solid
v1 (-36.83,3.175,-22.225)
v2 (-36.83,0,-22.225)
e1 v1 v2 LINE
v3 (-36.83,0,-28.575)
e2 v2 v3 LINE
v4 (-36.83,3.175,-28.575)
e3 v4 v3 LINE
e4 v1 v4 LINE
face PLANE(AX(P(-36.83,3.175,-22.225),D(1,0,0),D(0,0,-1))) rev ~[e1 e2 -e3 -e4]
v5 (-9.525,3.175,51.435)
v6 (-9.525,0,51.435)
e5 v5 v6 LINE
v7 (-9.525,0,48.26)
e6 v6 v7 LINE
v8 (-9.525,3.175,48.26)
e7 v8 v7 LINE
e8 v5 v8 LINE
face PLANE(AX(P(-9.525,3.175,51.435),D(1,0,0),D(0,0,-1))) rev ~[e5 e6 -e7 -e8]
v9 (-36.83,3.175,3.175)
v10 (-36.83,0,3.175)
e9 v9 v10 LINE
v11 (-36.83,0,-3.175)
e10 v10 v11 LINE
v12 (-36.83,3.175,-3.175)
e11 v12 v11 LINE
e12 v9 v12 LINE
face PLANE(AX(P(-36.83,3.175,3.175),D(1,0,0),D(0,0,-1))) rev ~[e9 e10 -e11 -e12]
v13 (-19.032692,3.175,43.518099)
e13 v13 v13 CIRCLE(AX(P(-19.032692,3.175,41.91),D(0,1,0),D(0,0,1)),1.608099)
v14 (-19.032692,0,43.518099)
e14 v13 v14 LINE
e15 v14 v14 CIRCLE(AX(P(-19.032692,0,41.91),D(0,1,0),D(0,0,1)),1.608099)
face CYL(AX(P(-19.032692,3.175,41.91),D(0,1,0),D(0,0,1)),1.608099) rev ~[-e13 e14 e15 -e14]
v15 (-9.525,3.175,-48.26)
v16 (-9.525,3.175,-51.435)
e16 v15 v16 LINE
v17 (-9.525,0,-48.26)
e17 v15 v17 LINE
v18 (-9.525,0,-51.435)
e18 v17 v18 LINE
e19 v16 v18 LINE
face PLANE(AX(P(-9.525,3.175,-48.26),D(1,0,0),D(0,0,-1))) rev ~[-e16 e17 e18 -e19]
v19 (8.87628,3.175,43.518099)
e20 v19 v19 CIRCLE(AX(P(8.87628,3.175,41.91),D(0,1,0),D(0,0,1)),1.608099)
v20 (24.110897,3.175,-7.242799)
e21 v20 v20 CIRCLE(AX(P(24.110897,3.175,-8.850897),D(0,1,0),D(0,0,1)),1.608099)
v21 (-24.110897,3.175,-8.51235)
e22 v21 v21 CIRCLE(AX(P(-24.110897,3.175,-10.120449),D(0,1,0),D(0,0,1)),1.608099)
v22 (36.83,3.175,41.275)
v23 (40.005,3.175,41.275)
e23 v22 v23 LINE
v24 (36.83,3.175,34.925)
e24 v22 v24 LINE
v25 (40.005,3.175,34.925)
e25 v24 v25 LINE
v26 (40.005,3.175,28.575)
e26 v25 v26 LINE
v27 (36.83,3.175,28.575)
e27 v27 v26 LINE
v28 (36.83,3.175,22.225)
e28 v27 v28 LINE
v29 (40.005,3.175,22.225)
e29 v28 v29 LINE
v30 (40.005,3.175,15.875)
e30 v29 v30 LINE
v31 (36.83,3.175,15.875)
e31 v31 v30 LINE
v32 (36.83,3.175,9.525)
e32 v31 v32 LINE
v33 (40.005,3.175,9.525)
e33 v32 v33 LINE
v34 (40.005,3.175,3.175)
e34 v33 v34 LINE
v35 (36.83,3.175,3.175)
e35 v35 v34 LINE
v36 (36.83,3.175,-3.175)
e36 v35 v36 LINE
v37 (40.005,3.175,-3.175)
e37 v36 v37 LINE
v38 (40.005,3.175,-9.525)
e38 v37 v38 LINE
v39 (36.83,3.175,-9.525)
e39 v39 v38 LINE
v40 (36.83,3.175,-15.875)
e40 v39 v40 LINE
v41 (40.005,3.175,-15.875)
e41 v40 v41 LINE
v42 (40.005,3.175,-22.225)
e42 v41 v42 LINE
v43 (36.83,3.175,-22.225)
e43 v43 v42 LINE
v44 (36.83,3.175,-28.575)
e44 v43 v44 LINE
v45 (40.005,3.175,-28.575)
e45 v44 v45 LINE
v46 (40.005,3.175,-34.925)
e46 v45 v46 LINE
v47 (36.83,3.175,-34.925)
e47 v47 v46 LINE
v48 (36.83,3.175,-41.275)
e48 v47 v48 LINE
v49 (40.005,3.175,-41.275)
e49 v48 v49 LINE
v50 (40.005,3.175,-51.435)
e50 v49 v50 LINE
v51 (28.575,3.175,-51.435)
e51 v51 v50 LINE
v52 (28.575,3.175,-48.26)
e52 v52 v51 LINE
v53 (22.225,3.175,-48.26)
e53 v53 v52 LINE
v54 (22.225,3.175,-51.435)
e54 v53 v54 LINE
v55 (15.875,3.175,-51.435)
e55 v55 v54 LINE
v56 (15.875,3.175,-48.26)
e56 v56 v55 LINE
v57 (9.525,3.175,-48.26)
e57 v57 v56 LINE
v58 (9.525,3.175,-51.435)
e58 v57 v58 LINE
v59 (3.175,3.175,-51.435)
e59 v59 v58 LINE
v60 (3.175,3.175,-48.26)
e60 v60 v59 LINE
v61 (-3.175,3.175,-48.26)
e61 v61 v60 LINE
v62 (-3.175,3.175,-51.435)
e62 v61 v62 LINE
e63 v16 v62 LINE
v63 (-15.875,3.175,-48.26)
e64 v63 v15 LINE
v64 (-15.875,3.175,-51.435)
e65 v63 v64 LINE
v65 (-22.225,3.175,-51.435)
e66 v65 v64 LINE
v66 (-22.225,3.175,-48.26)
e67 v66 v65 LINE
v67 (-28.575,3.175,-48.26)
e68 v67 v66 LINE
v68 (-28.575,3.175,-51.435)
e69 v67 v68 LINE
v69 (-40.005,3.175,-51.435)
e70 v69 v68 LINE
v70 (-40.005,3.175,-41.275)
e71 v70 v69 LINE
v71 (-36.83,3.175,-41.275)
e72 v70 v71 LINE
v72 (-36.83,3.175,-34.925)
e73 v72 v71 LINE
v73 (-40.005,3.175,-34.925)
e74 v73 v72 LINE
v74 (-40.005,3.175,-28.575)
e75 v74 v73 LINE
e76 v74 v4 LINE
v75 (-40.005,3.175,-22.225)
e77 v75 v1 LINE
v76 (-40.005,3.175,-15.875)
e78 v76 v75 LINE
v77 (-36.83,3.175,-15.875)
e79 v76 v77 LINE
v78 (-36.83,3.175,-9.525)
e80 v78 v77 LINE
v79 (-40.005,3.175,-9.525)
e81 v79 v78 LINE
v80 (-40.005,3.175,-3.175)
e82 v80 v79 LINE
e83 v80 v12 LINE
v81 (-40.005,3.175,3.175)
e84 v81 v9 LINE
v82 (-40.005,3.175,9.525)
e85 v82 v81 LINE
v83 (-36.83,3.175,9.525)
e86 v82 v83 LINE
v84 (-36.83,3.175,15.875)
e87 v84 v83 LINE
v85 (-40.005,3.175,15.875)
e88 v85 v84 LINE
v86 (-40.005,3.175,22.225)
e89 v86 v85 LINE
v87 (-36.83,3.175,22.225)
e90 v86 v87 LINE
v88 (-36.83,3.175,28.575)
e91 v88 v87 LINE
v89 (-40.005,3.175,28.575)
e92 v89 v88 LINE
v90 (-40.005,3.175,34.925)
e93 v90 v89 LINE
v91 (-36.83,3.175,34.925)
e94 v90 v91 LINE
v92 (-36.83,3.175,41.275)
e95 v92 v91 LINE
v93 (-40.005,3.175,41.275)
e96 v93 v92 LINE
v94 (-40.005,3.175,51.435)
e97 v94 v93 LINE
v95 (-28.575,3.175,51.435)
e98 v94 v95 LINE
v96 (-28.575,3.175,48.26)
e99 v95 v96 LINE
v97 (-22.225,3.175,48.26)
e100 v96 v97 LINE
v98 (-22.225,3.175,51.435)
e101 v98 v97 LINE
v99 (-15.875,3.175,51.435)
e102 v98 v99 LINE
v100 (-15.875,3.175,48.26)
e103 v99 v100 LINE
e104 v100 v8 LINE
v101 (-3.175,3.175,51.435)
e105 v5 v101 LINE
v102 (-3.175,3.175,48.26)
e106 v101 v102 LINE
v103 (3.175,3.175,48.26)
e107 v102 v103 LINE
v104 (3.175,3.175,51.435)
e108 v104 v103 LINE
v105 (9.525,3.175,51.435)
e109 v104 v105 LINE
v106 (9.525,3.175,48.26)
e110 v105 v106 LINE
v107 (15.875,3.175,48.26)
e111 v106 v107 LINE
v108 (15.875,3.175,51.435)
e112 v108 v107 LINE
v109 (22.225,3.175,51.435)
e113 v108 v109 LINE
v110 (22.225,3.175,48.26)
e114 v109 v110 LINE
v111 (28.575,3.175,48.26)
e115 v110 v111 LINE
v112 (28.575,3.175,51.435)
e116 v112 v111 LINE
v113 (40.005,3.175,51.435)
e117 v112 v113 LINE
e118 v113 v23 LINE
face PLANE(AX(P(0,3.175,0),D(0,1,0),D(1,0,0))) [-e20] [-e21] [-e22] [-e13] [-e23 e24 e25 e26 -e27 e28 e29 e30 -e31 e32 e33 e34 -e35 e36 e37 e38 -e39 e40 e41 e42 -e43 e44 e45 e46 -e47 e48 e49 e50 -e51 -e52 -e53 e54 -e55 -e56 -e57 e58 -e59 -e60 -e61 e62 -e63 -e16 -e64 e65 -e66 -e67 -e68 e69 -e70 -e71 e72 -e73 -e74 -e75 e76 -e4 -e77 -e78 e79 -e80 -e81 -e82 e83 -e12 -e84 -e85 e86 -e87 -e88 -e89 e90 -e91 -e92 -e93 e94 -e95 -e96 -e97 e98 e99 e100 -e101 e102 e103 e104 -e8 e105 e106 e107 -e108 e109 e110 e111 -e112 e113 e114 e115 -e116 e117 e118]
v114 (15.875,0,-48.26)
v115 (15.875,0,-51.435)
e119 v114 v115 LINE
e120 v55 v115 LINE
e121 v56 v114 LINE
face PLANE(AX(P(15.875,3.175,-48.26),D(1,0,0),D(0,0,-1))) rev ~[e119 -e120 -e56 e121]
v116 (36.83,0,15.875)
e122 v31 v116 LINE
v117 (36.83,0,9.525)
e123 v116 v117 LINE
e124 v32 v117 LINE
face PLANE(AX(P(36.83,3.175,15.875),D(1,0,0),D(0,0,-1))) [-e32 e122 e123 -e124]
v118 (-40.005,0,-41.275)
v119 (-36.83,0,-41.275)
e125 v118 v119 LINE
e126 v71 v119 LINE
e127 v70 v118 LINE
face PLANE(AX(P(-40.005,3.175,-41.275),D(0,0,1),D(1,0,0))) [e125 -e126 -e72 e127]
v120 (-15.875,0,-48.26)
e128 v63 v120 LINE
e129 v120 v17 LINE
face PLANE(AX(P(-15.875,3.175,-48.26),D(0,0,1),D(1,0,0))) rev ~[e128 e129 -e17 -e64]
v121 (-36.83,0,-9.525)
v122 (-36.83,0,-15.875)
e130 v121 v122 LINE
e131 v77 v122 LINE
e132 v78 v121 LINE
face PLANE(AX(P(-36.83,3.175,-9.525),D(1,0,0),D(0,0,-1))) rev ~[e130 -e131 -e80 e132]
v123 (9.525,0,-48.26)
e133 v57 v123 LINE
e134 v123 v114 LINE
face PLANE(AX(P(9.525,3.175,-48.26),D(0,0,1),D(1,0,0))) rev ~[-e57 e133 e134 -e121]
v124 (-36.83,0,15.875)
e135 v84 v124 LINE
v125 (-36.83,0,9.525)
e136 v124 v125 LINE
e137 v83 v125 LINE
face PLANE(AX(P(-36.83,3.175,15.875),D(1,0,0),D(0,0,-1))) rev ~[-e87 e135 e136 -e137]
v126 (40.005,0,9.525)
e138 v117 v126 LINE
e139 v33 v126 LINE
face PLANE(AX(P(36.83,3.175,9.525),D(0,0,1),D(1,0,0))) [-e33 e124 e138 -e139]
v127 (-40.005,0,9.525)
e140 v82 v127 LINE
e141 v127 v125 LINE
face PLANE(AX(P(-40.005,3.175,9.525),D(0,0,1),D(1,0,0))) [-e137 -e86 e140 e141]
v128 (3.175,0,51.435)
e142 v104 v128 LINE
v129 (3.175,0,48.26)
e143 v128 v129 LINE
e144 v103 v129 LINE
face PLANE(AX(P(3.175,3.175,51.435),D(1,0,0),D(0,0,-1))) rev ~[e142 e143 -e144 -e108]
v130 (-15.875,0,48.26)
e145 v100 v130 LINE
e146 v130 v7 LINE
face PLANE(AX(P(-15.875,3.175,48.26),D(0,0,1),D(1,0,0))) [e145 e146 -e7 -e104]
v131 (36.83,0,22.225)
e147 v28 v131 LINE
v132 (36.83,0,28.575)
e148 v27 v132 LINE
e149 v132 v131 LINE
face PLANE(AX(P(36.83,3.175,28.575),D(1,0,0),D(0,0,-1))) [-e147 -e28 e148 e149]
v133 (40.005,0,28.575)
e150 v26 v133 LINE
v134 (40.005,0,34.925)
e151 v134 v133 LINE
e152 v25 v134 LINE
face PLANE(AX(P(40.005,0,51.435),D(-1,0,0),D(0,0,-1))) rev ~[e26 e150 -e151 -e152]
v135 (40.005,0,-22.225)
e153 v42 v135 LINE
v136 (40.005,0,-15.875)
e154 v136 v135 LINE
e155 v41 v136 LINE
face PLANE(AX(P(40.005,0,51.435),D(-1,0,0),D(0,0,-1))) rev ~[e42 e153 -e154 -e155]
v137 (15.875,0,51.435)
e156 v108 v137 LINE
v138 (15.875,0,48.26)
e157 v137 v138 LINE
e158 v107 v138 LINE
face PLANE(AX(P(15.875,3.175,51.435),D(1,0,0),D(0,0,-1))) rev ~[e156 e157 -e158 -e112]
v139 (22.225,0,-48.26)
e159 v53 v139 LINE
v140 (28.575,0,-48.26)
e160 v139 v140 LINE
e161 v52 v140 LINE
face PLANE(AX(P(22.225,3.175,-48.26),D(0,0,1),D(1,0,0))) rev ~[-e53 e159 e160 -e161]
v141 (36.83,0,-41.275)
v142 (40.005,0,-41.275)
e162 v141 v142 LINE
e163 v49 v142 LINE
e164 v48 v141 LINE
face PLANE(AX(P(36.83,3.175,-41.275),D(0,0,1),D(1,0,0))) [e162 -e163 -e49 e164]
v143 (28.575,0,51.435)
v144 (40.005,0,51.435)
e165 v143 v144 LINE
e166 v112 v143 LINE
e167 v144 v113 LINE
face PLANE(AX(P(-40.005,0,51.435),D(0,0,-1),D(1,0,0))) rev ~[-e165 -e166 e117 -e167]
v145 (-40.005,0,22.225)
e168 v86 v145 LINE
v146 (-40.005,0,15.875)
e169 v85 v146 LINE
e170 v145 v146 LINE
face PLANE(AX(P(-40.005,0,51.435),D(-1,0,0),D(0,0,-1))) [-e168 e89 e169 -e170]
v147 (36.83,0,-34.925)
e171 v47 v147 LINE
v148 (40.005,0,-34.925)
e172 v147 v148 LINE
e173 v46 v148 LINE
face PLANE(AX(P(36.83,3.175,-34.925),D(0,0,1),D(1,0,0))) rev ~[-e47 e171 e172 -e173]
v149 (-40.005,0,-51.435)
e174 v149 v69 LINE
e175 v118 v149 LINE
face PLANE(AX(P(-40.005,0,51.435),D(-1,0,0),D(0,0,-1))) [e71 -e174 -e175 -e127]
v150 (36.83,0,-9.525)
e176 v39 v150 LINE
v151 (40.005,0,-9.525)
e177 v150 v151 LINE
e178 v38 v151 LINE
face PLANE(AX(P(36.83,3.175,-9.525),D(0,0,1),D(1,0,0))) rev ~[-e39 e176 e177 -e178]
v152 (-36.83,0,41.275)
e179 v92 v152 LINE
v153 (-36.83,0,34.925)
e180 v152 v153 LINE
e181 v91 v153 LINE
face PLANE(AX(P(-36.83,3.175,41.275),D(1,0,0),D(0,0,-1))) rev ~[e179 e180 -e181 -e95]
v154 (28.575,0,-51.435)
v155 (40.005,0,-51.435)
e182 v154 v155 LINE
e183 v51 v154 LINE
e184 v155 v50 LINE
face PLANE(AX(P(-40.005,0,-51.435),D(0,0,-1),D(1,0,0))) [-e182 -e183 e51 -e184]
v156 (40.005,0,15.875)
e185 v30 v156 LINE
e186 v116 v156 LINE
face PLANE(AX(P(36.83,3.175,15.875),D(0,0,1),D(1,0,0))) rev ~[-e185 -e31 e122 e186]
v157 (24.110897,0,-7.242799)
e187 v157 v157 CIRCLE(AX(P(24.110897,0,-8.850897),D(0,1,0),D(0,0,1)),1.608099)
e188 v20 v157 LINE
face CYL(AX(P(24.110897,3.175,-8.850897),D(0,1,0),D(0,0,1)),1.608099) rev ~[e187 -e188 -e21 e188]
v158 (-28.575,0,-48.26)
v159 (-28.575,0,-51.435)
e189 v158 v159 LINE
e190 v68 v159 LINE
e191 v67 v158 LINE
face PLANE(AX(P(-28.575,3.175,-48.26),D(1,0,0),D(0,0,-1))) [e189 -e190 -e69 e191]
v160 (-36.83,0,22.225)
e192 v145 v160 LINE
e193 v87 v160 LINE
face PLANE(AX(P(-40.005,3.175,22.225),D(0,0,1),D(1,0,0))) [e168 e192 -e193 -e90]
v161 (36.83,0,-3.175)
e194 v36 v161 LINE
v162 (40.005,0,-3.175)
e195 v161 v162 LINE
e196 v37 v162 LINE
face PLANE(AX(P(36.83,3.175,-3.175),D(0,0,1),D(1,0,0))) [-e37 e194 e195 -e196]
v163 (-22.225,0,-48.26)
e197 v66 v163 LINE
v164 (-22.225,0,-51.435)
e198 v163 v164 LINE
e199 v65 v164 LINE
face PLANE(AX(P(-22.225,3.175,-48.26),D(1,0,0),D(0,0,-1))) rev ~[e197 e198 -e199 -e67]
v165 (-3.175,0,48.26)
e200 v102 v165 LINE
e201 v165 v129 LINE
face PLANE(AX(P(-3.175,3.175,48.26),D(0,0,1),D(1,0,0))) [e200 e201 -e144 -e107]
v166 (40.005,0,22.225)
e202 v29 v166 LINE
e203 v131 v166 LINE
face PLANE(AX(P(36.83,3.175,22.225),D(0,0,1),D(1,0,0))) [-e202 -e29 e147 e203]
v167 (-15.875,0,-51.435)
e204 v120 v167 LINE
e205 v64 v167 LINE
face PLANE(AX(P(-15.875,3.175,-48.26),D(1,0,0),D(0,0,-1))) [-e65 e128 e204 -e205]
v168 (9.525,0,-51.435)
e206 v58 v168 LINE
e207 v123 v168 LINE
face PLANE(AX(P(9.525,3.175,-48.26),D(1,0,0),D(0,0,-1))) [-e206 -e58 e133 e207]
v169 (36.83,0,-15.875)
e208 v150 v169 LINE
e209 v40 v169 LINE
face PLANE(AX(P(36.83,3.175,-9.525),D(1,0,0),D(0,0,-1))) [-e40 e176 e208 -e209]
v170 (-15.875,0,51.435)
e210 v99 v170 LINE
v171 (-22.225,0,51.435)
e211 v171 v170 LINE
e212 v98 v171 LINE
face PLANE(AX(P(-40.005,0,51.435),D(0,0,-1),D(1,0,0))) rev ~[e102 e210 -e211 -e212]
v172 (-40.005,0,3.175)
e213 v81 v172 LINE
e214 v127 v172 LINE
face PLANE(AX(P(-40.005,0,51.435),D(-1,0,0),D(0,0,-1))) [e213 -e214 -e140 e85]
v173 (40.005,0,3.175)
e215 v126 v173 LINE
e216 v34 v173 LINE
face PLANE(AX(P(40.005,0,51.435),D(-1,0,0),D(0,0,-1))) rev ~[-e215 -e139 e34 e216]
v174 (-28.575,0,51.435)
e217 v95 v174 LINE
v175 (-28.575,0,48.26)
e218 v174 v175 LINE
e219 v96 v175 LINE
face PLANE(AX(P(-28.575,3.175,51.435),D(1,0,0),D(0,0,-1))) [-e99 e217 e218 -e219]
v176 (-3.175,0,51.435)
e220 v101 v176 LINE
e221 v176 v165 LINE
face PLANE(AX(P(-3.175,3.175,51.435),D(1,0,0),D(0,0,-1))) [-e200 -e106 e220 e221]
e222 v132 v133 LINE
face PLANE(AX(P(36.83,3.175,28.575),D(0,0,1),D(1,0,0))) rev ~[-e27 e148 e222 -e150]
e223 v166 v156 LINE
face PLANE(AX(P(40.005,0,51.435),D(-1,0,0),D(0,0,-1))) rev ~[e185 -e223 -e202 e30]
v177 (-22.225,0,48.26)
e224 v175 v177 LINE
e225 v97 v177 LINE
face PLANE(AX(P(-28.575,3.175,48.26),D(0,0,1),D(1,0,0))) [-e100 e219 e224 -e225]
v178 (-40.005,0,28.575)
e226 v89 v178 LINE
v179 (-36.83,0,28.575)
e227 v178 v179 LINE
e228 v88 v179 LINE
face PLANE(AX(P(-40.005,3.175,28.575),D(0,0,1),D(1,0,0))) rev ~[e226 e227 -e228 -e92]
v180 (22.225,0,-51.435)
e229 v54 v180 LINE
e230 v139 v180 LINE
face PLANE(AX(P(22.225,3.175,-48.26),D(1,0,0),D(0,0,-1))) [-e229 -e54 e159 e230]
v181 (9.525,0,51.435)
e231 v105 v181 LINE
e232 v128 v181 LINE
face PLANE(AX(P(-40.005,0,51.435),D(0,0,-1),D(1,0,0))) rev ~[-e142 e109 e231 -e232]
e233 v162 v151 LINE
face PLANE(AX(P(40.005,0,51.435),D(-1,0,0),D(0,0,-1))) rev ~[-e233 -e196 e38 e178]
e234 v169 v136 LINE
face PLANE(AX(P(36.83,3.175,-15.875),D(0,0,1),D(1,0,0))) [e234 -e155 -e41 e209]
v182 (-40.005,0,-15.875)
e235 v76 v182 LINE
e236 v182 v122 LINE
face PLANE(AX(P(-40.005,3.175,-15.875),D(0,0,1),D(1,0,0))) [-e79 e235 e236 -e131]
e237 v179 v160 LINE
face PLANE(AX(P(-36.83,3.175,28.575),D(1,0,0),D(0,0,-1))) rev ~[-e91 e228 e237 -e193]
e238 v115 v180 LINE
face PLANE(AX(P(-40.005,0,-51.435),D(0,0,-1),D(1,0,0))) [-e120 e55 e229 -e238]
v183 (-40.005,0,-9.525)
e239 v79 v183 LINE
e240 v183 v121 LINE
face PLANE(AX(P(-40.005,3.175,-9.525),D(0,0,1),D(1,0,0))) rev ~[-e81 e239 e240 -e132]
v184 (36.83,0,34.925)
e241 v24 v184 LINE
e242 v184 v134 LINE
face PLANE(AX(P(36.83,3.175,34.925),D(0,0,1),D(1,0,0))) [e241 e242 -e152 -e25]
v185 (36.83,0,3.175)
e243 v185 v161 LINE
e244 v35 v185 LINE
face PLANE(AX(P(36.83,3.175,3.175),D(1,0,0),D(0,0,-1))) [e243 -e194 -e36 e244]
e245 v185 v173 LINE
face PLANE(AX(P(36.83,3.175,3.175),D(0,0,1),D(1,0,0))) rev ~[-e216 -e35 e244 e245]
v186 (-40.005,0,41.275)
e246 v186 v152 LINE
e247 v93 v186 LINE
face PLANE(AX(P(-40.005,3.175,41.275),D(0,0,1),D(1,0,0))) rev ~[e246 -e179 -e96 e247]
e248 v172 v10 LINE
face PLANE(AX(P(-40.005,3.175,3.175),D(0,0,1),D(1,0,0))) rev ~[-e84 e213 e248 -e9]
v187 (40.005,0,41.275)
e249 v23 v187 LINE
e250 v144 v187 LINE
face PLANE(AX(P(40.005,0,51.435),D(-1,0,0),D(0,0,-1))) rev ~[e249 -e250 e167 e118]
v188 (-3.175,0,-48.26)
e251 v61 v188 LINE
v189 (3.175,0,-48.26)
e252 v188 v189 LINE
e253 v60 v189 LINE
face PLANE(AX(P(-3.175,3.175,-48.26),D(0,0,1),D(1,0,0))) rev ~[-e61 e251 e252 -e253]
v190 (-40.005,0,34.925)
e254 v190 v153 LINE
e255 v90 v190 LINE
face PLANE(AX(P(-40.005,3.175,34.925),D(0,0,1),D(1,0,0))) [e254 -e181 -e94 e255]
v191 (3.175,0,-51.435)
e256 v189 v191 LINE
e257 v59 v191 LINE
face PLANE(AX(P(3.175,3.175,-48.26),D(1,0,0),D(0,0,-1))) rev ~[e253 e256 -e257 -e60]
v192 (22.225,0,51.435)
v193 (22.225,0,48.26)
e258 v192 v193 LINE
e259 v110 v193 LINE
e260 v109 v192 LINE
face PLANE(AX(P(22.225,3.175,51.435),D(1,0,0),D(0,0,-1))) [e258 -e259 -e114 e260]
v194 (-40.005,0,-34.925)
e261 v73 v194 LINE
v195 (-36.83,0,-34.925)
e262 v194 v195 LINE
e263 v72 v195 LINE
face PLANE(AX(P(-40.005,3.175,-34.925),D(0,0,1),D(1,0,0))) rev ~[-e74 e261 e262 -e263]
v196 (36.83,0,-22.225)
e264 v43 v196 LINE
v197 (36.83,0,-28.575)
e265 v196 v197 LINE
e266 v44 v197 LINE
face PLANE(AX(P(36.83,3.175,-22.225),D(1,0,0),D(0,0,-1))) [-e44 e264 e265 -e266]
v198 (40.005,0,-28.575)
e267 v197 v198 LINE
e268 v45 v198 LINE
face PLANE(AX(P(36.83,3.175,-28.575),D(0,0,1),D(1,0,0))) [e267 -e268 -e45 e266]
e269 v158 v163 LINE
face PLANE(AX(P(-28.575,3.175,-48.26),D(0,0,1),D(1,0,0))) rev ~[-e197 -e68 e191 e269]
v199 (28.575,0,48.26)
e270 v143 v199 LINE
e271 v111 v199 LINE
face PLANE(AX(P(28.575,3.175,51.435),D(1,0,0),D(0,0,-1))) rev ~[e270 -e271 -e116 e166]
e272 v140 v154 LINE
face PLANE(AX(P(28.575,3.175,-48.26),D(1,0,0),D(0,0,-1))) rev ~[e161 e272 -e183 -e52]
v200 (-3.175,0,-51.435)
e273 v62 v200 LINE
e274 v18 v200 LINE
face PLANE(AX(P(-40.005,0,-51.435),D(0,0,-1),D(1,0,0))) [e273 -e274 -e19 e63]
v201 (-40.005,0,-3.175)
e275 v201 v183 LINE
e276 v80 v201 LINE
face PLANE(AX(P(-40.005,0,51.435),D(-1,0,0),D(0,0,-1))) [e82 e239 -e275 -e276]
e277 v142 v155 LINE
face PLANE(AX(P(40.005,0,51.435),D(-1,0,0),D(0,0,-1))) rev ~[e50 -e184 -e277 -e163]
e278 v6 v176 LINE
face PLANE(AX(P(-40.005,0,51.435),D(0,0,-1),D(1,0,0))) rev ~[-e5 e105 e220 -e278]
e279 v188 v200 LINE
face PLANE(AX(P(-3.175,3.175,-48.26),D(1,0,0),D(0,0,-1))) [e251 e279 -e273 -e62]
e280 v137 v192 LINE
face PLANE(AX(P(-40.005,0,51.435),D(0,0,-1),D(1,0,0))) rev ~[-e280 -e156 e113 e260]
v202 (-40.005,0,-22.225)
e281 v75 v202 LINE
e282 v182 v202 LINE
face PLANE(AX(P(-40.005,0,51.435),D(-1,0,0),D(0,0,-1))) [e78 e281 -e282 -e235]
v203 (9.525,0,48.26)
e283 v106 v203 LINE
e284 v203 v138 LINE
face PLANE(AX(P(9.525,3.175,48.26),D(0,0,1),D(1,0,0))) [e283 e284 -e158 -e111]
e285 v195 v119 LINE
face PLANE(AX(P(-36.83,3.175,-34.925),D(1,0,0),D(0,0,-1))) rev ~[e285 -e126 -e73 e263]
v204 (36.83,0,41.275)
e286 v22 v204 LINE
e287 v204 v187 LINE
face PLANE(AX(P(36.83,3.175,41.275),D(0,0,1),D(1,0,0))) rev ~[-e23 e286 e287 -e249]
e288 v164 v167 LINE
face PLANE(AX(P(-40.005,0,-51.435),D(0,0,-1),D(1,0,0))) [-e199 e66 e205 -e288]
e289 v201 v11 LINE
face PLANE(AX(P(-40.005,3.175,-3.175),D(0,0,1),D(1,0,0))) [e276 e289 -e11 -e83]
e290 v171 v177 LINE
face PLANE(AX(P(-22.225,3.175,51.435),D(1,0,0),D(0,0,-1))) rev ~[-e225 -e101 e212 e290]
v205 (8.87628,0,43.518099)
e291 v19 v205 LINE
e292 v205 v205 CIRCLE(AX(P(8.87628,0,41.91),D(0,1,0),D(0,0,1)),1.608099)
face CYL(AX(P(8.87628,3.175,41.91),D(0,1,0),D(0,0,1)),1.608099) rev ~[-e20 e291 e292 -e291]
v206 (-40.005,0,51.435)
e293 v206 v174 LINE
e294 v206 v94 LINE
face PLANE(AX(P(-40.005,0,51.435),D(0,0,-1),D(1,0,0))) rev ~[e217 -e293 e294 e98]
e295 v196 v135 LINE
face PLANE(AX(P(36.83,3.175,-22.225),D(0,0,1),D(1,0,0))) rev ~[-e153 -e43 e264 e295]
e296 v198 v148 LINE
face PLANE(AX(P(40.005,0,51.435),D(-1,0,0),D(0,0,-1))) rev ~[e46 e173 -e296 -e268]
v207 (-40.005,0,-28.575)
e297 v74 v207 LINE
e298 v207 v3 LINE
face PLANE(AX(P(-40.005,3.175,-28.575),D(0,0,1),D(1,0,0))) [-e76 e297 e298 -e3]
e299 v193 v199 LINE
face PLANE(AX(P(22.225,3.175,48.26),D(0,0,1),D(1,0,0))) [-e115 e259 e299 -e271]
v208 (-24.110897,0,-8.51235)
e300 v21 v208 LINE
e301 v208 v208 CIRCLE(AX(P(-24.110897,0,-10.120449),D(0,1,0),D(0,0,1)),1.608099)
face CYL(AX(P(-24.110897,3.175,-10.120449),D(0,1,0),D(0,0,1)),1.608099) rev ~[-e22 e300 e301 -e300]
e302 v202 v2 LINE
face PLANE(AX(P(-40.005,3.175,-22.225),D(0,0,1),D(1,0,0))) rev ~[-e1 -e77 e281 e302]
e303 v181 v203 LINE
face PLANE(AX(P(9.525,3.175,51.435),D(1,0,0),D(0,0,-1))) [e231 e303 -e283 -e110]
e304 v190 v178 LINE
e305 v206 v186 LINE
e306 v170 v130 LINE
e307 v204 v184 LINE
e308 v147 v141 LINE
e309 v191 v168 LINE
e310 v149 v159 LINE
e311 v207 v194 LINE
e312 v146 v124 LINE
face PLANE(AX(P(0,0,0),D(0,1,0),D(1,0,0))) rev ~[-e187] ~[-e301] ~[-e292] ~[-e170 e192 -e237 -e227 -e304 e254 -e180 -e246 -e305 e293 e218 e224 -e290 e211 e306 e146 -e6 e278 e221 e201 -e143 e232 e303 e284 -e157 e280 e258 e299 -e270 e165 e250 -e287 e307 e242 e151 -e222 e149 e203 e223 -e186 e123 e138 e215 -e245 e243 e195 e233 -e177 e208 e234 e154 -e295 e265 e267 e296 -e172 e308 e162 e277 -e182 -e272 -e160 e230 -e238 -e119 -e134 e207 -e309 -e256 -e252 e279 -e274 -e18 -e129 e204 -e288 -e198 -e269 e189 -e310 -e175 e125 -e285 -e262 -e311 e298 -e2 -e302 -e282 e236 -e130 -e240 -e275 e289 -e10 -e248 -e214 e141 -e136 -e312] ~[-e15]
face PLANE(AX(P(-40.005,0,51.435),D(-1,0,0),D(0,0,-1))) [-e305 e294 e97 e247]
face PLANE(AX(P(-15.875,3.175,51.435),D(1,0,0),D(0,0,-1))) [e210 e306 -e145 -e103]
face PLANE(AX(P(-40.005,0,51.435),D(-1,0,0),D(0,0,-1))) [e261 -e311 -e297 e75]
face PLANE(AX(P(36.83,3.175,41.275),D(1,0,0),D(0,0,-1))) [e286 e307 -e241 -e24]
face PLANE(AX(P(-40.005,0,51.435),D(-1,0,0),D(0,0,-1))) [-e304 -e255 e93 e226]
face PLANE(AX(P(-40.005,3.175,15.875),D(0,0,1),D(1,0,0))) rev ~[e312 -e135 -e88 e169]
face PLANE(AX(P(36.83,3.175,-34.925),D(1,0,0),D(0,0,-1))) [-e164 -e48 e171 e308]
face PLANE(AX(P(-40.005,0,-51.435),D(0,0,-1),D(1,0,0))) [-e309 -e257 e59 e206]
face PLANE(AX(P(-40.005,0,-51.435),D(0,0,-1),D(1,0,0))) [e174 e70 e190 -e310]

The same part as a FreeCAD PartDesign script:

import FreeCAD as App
import Part
import Sketcher

V = App.Vector
Q = App.Units.Quantity

doc = App.newDocument("Part")
body = doc.addObject("PartDesign::Body", "Body")

sketch1 = body.newObject("Sketcher::SketchObject", "Sketch")
sketch1.AttachmentSupport = (doc.getObject("XZ_Plane"), [""])
sketch1.MapMode = "FlatFace"
sketch1.addGeometry(Part.LineSegment(V(-40, -51, 0), V(-40, 51, 0)), False)
sketch1.addGeometry(Part.LineSegment(V(-40, 51, 0), V(40, 51, 0)), False)
sketch1.addGeometry(Part.LineSegment(V(40, 51, 0), V(40, -51, 0)), False)
sketch1.addGeometry(Part.LineSegment(V(40, -51, 0), V(-40, -51, 0)), False)
sketch1.addConstraint(Sketcher.Constraint("Coincident", 0, 2, 1, 1))
sketch1.addConstraint(Sketcher.Constraint("Coincident", 1, 2, 2, 1))
sketch1.addConstraint(Sketcher.Constraint("Coincident", 2, 2, 3, 1))
sketch1.addConstraint(Sketcher.Constraint("Coincident", 3, 2, 0, 1))
sketch1.addConstraint(Sketcher.Constraint("Vertical", 0))
sketch1.addConstraint(Sketcher.Constraint("Horizontal", 1))
sketch1.addConstraint(Sketcher.Constraint("Vertical", 2))
sketch1.addConstraint(Sketcher.Constraint("Horizontal", 3))
sketch1.addConstraint(Sketcher.Constraint("Symmetric", 0, 2, 2, 2, -1, 1))
sketch1.addConstraint(Sketcher.Constraint("DistanceX", 1, 1, 1, 2, Q("3.15 in")))
sketch1.addConstraint(Sketcher.Constraint("DistanceY", 0, 1, 0, 2, Q("4.05 in")))
pad1 = body.newObject("PartDesign::Pad", "Pad")
pad1.Profile = sketch1
pad1.Length = Q("0.125 in")
pad1.Reversed = True

sketch2 = body.newObject("Sketcher::SketchObject", "Sketch001")
sketch2.AttachmentSupport = (doc.getObject("XZ_Plane"), [""])
sketch2.MapMode = "FlatFace"
sketch2.AttachmentOffset = App.Placement(V(0, 0, -0.125 * 25.4), App.Rotation())
sketch2.addGeometry(Part.LineSegment(V(-40, 34.9, 0), V(-40, 41.3, 0)), False)
sketch2.addGeometry(Part.LineSegment(V(-40, 41.3, 0), V(-36.8, 41.3, 0)), False)
sketch2.addGeometry(Part.LineSegment(V(-36.8, 41.3, 0), V(-36.8, 34.9, 0)), False)
sketch2.addGeometry(Part.LineSegment(V(-36.8, 34.9, 0), V(-40, 34.9, 0)), False)
sketch2.addGeometry(Part.LineSegment(V(-40, 22.2, 0), V(-40, 28.6, 0)), False)
sketch2.addGeometry(Part.LineSegment(V(-40, 28.6, 0), V(-36.8, 28.6, 0)), False)
sketch2.addGeometry(Part.LineSegment(V(-36.8, 28.6, 0), V(-36.8, 22.2, 0)), False)
sketch2.addGeometry(Part.LineSegment(V(-36.8, 22.2, 0), V(-40, 22.2, 0)), False)
sketch2.addGeometry(Part.LineSegment(V(-40, 9.5, 0), V(-40, 15.9, 0)), False)
sketch2.addGeometry(Part.LineSegment(V(-40, 15.9, 0), V(-36.8, 15.9, 0)), False)
sketch2.addGeometry(Part.LineSegment(V(-36.8, 15.9, 0), V(-36.8, 9.5, 0)), False)
sketch2.addGeometry(Part.LineSegment(V(-36.8, 9.5, 0), V(-40, 9.5, 0)), False)
sketch2.addGeometry(Part.LineSegment(V(-40, -3.2, 0), V(-40, 3.2, 0)), False)
sketch2.addGeometry(Part.LineSegment(V(-40, 3.2, 0), V(-36.8, 3.2, 0)), False)
sketch2.addGeometry(Part.LineSegment(V(-36.8, 3.2, 0), V(-36.8, -3.2, 0)), False)
sketch2.addGeometry(Part.LineSegment(V(-36.8, -3.2, 0), V(-40, -3.2, 0)), False)
sketch2.addGeometry(Part.LineSegment(V(-40, -15.9, 0), V(-40, -9.5, 0)), False)
sketch2.addGeometry(Part.LineSegment(V(-40, -9.5, 0), V(-36.8, -9.5, 0)), False)
sketch2.addGeometry(Part.LineSegment(V(-36.8, -9.5, 0), V(-36.8, -15.9, 0)), False)
sketch2.addGeometry(Part.LineSegment(V(-36.8, -15.9, 0), V(-40, -15.9, 0)), False)
sketch2.addGeometry(Part.LineSegment(V(-40, -28.6, 0), V(-40, -22.2, 0)), False)
sketch2.addGeometry(Part.LineSegment(V(-40, -22.2, 0), V(-36.8, -22.2, 0)), False)
sketch2.addGeometry(Part.LineSegment(V(-36.8, -22.2, 0), V(-36.8, -28.6, 0)), False)
sketch2.addGeometry(Part.LineSegment(V(-36.8, -28.6, 0), V(-40, -28.6, 0)), False)
sketch2.addGeometry(Part.LineSegment(V(36.8, -28.6, 0), V(36.8, -22.2, 0)), False)
sketch2.addGeometry(Part.LineSegment(V(36.8, -22.2, 0), V(40, -22.2, 0)), False)
sketch2.addGeometry(Part.LineSegment(V(40, -22.2, 0), V(40, -28.6, 0)), False)
sketch2.addGeometry(Part.LineSegment(V(40, -28.6, 0), V(36.8, -28.6, 0)), False)
sketch2.addGeometry(Part.LineSegment(V(36.8, -15.9, 0), V(36.8, -9.5, 0)), False)
sketch2.addGeometry(Part.LineSegment(V(36.8, -9.5, 0), V(40, -9.5, 0)), False)
sketch2.addGeometry(Part.LineSegment(V(40, -9.5, 0), V(40, -15.9, 0)), False)
sketch2.addGeometry(Part.LineSegment(V(40, -15.9, 0), V(36.8, -15.9, 0)), False)
sketch2.addGeometry(Part.LineSegment(V(36.8, -3.2, 0), V(36.8, 3.2, 0)), False)
sketch2.addGeometry(Part.LineSegment(V(36.8, 3.2, 0), V(40, 3.2, 0)), False)
sketch2.addGeometry(Part.LineSegment(V(40, 3.2, 0), V(40, -3.2, 0)), False)
sketch2.addGeometry(Part.LineSegment(V(40, -3.2, 0), V(36.8, -3.2, 0)), False)
sketch2.addGeometry(Part.LineSegment(V(36.8, 9.5, 0), V(36.8, 15.9, 0)), False)
sketch2.addGeometry(Part.LineSegment(V(36.8, 15.9, 0), V(40, 15.9, 0)), False)
sketch2.addGeometry(Part.LineSegment(V(40, 15.9, 0), V(40, 9.5, 0)), False)
sketch2.addGeometry(Part.LineSegment(V(40, 9.5, 0), V(36.8, 9.5, 0)), False)
sketch2.addGeometry(Part.LineSegment(V(36.8, 22.2, 0), V(36.8, 28.6, 0)), False)
sketch2.addGeometry(Part.LineSegment(V(36.8, 28.6, 0), V(40, 28.6, 0)), False)
sketch2.addGeometry(Part.LineSegment(V(40, 28.6, 0), V(40, 22.2, 0)), False)
sketch2.addGeometry(Part.LineSegment(V(40, 22.2, 0), V(36.8, 22.2, 0)), False)
sketch2.addGeometry(Part.LineSegment(V(36.8, 34.9, 0), V(36.8, 41.3, 0)), False)
sketch2.addGeometry(Part.LineSegment(V(36.8, 41.3, 0), V(40, 41.3, 0)), False)
sketch2.addGeometry(Part.LineSegment(V(40, 41.3, 0), V(40, 34.9, 0)), False)
sketch2.addGeometry(Part.LineSegment(V(40, 34.9, 0), V(36.8, 34.9, 0)), False)
sketch2.addGeometry(Part.LineSegment(V(-40, -41.3, 0), V(-40, -34.9, 0)), False)
sketch2.addGeometry(Part.LineSegment(V(-40, -34.9, 0), V(-36.8, -34.9, 0)), False)
sketch2.addGeometry(Part.LineSegment(V(-36.8, -34.9, 0), V(-36.8, -41.3, 0)), False)
sketch2.addGeometry(Part.LineSegment(V(-36.8, -41.3, 0), V(-40, -41.3, 0)), False)
sketch2.addGeometry(Part.LineSegment(V(36.8, -41.3, 0), V(36.8, -34.9, 0)), False)
sketch2.addGeometry(Part.LineSegment(V(36.8, -34.9, 0), V(40, -34.9, 0)), False)
sketch2.addGeometry(Part.LineSegment(V(40, -34.9, 0), V(40, -41.3, 0)), False)
sketch2.addGeometry(Part.LineSegment(V(40, -41.3, 0), V(36.8, -41.3, 0)), False)
sketch2.addConstraint(Sketcher.Constraint("Coincident", 0, 2, 1, 1))
sketch2.addConstraint(Sketcher.Constraint("Coincident", 1, 2, 2, 1))
sketch2.addConstraint(Sketcher.Constraint("Coincident", 2, 2, 3, 1))
sketch2.addConstraint(Sketcher.Constraint("Coincident", 3, 2, 0, 1))
sketch2.addConstraint(Sketcher.Constraint("Coincident", 4, 2, 5, 1))
sketch2.addConstraint(Sketcher.Constraint("Coincident", 5, 2, 6, 1))
sketch2.addConstraint(Sketcher.Constraint("Coincident", 6, 2, 7, 1))
sketch2.addConstraint(Sketcher.Constraint("Coincident", 7, 2, 4, 1))
sketch2.addConstraint(Sketcher.Constraint("Coincident", 8, 2, 9, 1))
sketch2.addConstraint(Sketcher.Constraint("Coincident", 9, 2, 10, 1))
sketch2.addConstraint(Sketcher.Constraint("Coincident", 10, 2, 11, 1))
sketch2.addConstraint(Sketcher.Constraint("Coincident", 11, 2, 8, 1))
sketch2.addConstraint(Sketcher.Constraint("Coincident", 12, 2, 13, 1))
sketch2.addConstraint(Sketcher.Constraint("Coincident", 13, 2, 14, 1))
sketch2.addConstraint(Sketcher.Constraint("Coincident", 14, 2, 15, 1))
sketch2.addConstraint(Sketcher.Constraint("Coincident", 15, 2, 12, 1))
sketch2.addConstraint(Sketcher.Constraint("Coincident", 16, 2, 17, 1))
sketch2.addConstraint(Sketcher.Constraint("Coincident", 17, 2, 18, 1))
sketch2.addConstraint(Sketcher.Constraint("Coincident", 18, 2, 19, 1))
sketch2.addConstraint(Sketcher.Constraint("Coincident", 19, 2, 16, 1))
sketch2.addConstraint(Sketcher.Constraint("Coincident", 20, 2, 21, 1))
sketch2.addConstraint(Sketcher.Constraint("Coincident", 21, 2, 22, 1))
sketch2.addConstraint(Sketcher.Constraint("Coincident", 22, 2, 23, 1))
sketch2.addConstraint(Sketcher.Constraint("Coincident", 23, 2, 20, 1))
sketch2.addConstraint(Sketcher.Constraint("Coincident", 24, 2, 25, 1))
sketch2.addConstraint(Sketcher.Constraint("Coincident", 25, 2, 26, 1))
sketch2.addConstraint(Sketcher.Constraint("Coincident", 26, 2, 27, 1))
sketch2.addConstraint(Sketcher.Constraint("Coincident", 27, 2, 24, 1))
sketch2.addConstraint(Sketcher.Constraint("Coincident", 28, 2, 29, 1))
sketch2.addConstraint(Sketcher.Constraint("Coincident", 29, 2, 30, 1))
sketch2.addConstraint(Sketcher.Constraint("Coincident", 30, 2, 31, 1))
sketch2.addConstraint(Sketcher.Constraint("Coincident", 31, 2, 28, 1))
sketch2.addConstraint(Sketcher.Constraint("Coincident", 32, 2, 33, 1))
sketch2.addConstraint(Sketcher.Constraint("Coincident", 33, 2, 34, 1))
sketch2.addConstraint(Sketcher.Constraint("Coincident", 34, 2, 35, 1))
sketch2.addConstraint(Sketcher.Constraint("Coincident", 35, 2, 32, 1))
sketch2.addConstraint(Sketcher.Constraint("Coincident", 36, 2, 37, 1))
sketch2.addConstraint(Sketcher.Constraint("Coincident", 37, 2, 38, 1))
sketch2.addConstraint(Sketcher.Constraint("Coincident", 38, 2, 39, 1))
sketch2.addConstraint(Sketcher.Constraint("Coincident", 39, 2, 36, 1))
sketch2.addConstraint(Sketcher.Constraint("Coincident", 40, 2, 41, 1))
sketch2.addConstraint(Sketcher.Constraint("Coincident", 41, 2, 42, 1))
sketch2.addConstraint(Sketcher.Constraint("Coincident", 42, 2, 43, 1))
sketch2.addConstraint(Sketcher.Constraint("Coincident", 43, 2, 40, 1))
sketch2.addConstraint(Sketcher.Constraint("Coincident", 44, 2, 45, 1))
sketch2.addConstraint(Sketcher.Constraint("Coincident", 45, 2, 46, 1))
sketch2.addConstraint(Sketcher.Constraint("Coincident", 46, 2, 47, 1))
sketch2.addConstraint(Sketcher.Constraint("Coincident", 47, 2, 44, 1))
sketch2.addConstraint(Sketcher.Constraint("Coincident", 48, 2, 49, 1))
sketch2.addConstraint(Sketcher.Constraint("Coincident", 49, 2, 50, 1))
sketch2.addConstraint(Sketcher.Constraint("Coincident", 50, 2, 51, 1))
sketch2.addConstraint(Sketcher.Constraint("Coincident", 51, 2, 48, 1))
sketch2.addConstraint(Sketcher.Constraint("Coincident", 52, 2, 53, 1))
sketch2.addConstraint(Sketcher.Constraint("Coincident", 53, 2, 54, 1))
sketch2.addConstraint(Sketcher.Constraint("Coincident", 54, 2, 55, 1))
sketch2.addConstraint(Sketcher.Constraint("Coincident", 55, 2, 52, 1))
sketch2.addConstraint(Sketcher.Constraint("Vertical", 0))
sketch2.addConstraint(Sketcher.Constraint("Horizontal", 1))
sketch2.addConstraint(Sketcher.Constraint("Vertical", 2))
sketch2.addConstraint(Sketcher.Constraint("Horizontal", 3))
sketch2.addConstraint(Sketcher.Constraint("Vertical", 4))
sketch2.addConstraint(Sketcher.Constraint("Horizontal", 5))
sketch2.addConstraint(Sketcher.Constraint("Vertical", 6))
sketch2.addConstraint(Sketcher.Constraint("Horizontal", 7))
sketch2.addConstraint(Sketcher.Constraint("Vertical", 8))
sketch2.addConstraint(Sketcher.Constraint("Horizontal", 9))
sketch2.addConstraint(Sketcher.Constraint("Vertical", 10))
sketch2.addConstraint(Sketcher.Constraint("Horizontal", 11))
sketch2.addConstraint(Sketcher.Constraint("Vertical", 12))
sketch2.addConstraint(Sketcher.Constraint("Horizontal", 13))
sketch2.addConstraint(Sketcher.Constraint("Vertical", 14))
sketch2.addConstraint(Sketcher.Constraint("Horizontal", 15))
sketch2.addConstraint(Sketcher.Constraint("Vertical", 16))
sketch2.addConstraint(Sketcher.Constraint("Horizontal", 17))
sketch2.addConstraint(Sketcher.Constraint("Vertical", 18))
sketch2.addConstraint(Sketcher.Constraint("Horizontal", 19))
sketch2.addConstraint(Sketcher.Constraint("Vertical", 20))
sketch2.addConstraint(Sketcher.Constraint("Horizontal", 21))
sketch2.addConstraint(Sketcher.Constraint("Vertical", 22))
sketch2.addConstraint(Sketcher.Constraint("Horizontal", 23))
sketch2.addConstraint(Sketcher.Constraint("Vertical", 24))
sketch2.addConstraint(Sketcher.Constraint("Horizontal", 25))
sketch2.addConstraint(Sketcher.Constraint("Vertical", 26))
sketch2.addConstraint(Sketcher.Constraint("Horizontal", 27))
sketch2.addConstraint(Sketcher.Constraint("Vertical", 28))
sketch2.addConstraint(Sketcher.Constraint("Horizontal", 29))
sketch2.addConstraint(Sketcher.Constraint("Vertical", 30))
sketch2.addConstraint(Sketcher.Constraint("Horizontal", 31))
sketch2.addConstraint(Sketcher.Constraint("Vertical", 32))
sketch2.addConstraint(Sketcher.Constraint("Horizontal", 33))
sketch2.addConstraint(Sketcher.Constraint("Vertical", 34))
sketch2.addConstraint(Sketcher.Constraint("Horizontal", 35))
sketch2.addConstraint(Sketcher.Constraint("Vertical", 36))
sketch2.addConstraint(Sketcher.Constraint("Horizontal", 37))
sketch2.addConstraint(Sketcher.Constraint("Vertical", 38))
sketch2.addConstraint(Sketcher.Constraint("Horizontal", 39))
sketch2.addConstraint(Sketcher.Constraint("Vertical", 40))
sketch2.addConstraint(Sketcher.Constraint("Horizontal", 41))
sketch2.addConstraint(Sketcher.Constraint("Vertical", 42))
sketch2.addConstraint(Sketcher.Constraint("Horizontal", 43))
sketch2.addConstraint(Sketcher.Constraint("Vertical", 44))
sketch2.addConstraint(Sketcher.Constraint("Horizontal", 45))
sketch2.addConstraint(Sketcher.Constraint("Vertical", 46))
sketch2.addConstraint(Sketcher.Constraint("Horizontal", 47))
sketch2.addConstraint(Sketcher.Constraint("Vertical", 48))
sketch2.addConstraint(Sketcher.Constraint("Horizontal", 49))
sketch2.addConstraint(Sketcher.Constraint("Vertical", 50))
sketch2.addConstraint(Sketcher.Constraint("Horizontal", 51))
sketch2.addConstraint(Sketcher.Constraint("Vertical", 52))
sketch2.addConstraint(Sketcher.Constraint("Horizontal", 53))
sketch2.addConstraint(Sketcher.Constraint("Vertical", 54))
sketch2.addConstraint(Sketcher.Constraint("Horizontal", 55))
sketch2.addConstraint(Sketcher.Constraint("Symmetric", 6, 2, 24, 2, -1, 1))
sketch2.addConstraint(Sketcher.Constraint("Symmetric", 4, 2, 26, 2, -1, 1))
sketch2.addConstraint(Sketcher.Constraint("Symmetric", 10, 2, 28, 2, -1, 1))
sketch2.addConstraint(Sketcher.Constraint("Symmetric", 8, 2, 30, 2, -1, 1))
sketch2.addConstraint(Sketcher.Constraint("Symmetric", 14, 2, 32, 2, -1, 1))
sketch2.addConstraint(Sketcher.Constraint("Symmetric", 12, 2, 34, 2, -1, 1))
sketch2.addConstraint(Sketcher.Constraint("Symmetric", 18, 2, 36, 2, -1, 1))
sketch2.addConstraint(Sketcher.Constraint("Symmetric", 16, 2, 38, 2, -1, 1))
sketch2.addConstraint(Sketcher.Constraint("Symmetric", 22, 2, 40, 2, -1, 1))
sketch2.addConstraint(Sketcher.Constraint("Symmetric", 20, 2, 42, 2, -1, 1))
sketch2.addConstraint(Sketcher.Constraint("Symmetric", 46, 2, 48, 2, -1, 1))
sketch2.addConstraint(Sketcher.Constraint("Symmetric", 44, 2, 50, 2, -1, 1))
sketch2.addConstraint(Sketcher.Constraint("Symmetric", 2, 2, 52, 2, -1, 1))
sketch2.addConstraint(Sketcher.Constraint("Symmetric", 0, 2, 54, 2, -1, 1))
sketch2.addConstraint(Sketcher.Constraint("Symmetric", 21, 2, 24, 2, -2))
sketch2.addConstraint(Sketcher.Constraint("Symmetric", 23, 2, 26, 2, -2))
sketch2.addConstraint(Sketcher.Constraint("Symmetric", 17, 2, 28, 2, -2))
sketch2.addConstraint(Sketcher.Constraint("Symmetric", 19, 2, 30, 2, -2))
sketch2.addConstraint(Sketcher.Constraint("Symmetric", 1, 2, 44, 2, -2))
sketch2.addConstraint(Sketcher.Constraint("Symmetric", 3, 2, 46, 2, -2))
sketch2.addConstraint(Sketcher.Constraint("Horizontal", 13, 2, 32, 2))
sketch2.addConstraint(Sketcher.Constraint("Vertical", 3, 2, 4, 2))
sketch2.addConstraint(Sketcher.Constraint("Vertical", 2, 2, 5, 2))
sketch2.addConstraint(Sketcher.Constraint("Vertical", 7, 2, 8, 2))
sketch2.addConstraint(Sketcher.Constraint("Vertical", 6, 2, 9, 2))
sketch2.addConstraint(Sketcher.Constraint("Vertical", 11, 2, 12, 2))
sketch2.addConstraint(Sketcher.Constraint("Vertical", 10, 2, 13, 2))
sketch2.addConstraint(Sketcher.Constraint("Equal", 2, 4))
sketch2.addConstraint(Sketcher.Constraint("Equal", 6, 8))
sketch2.addConstraint(Sketcher.Constraint("Equal", 10, 12))
sketch2.addConstraint(Sketcher.Constraint("DistanceY", 24, 2, 32, 2, Q("1 in")))
sketch2.addConstraint(Sketcher.Constraint("DistanceY", 28, 2, 36, 2, Q("1 in")))
sketch2.addConstraint(Sketcher.Constraint("DistanceY", 36, 2, 44, 2, Q("1 in")))
sketch2.addConstraint(Sketcher.Constraint("DistanceY", 0, 1, 0, 2, Q("0.25 in")))
sketch2.addConstraint(Sketcher.Constraint("DistanceX", 21, 2, 24, 2, Q("2.9 in")))
sketch2.addConstraint(Sketcher.Constraint("DistanceX", 1, 1, 1, 2, Q("0.125 in")))
pocket1 = body.newObject("PartDesign::Pocket", "Pocket")
pocket1.Profile = sketch2
pocket1.Type = "ThroughAll"
pocket1.Reversed = True

sketch3 = body.newObject("Sketcher::SketchObject", "Sketch002")
sketch3.AttachmentSupport = (doc.getObject("XZ_Plane"), [""])
sketch3.MapMode = "FlatFace"
sketch3.AttachmentOffset = App.Placement(V(0, 0, -0.125 * 25.4), App.Rotation())
sketch3.addGeometry(Part.LineSegment(V(22.2, -51.4, 0), V(22.2, -48.3, 0)), False)
sketch3.addGeometry(Part.LineSegment(V(22.2, -48.3, 0), V(28.6, -48.3, 0)), False)
sketch3.addGeometry(Part.LineSegment(V(28.6, -48.3, 0), V(28.6, -51.4, 0)), False)
sketch3.addGeometry(Part.LineSegment(V(28.6, -51.4, 0), V(22.2, -51.4, 0)), False)
sketch3.addGeometry(Part.LineSegment(V(9.5, -51.4, 0), V(9.5, -48.3, 0)), False)
sketch3.addGeometry(Part.LineSegment(V(9.5, -48.3, 0), V(15.9, -48.3, 0)), False)
sketch3.addGeometry(Part.LineSegment(V(15.9, -48.3, 0), V(15.9, -51.4, 0)), False)
sketch3.addGeometry(Part.LineSegment(V(15.9, -51.4, 0), V(9.5, -51.4, 0)), False)
sketch3.addGeometry(Part.LineSegment(V(-3.2, -51.4, 0), V(-3.2, -48.3, 0)), False)
sketch3.addGeometry(Part.LineSegment(V(-3.2, -48.3, 0), V(3.2, -48.3, 0)), False)
sketch3.addGeometry(Part.LineSegment(V(3.2, -48.3, 0), V(3.2, -51.4, 0)), False)
sketch3.addGeometry(Part.LineSegment(V(3.2, -51.4, 0), V(-3.2, -51.4, 0)), False)
sketch3.addGeometry(Part.LineSegment(V(-15.9, -51.4, 0), V(-15.9, -48.3, 0)), False)
sketch3.addGeometry(Part.LineSegment(V(-15.9, -48.3, 0), V(-9.5, -48.3, 0)), False)
sketch3.addGeometry(Part.LineSegment(V(-9.5, -48.3, 0), V(-9.5, -51.4, 0)), False)
sketch3.addGeometry(Part.LineSegment(V(-9.5, -51.4, 0), V(-15.9, -51.4, 0)), False)
sketch3.addGeometry(Part.LineSegment(V(-15.9, 48.3, 0), V(-15.9, 51.4, 0)), False)
sketch3.addGeometry(Part.LineSegment(V(-15.9, 51.4, 0), V(-9.5, 51.4, 0)), False)
sketch3.addGeometry(Part.LineSegment(V(-9.5, 51.4, 0), V(-9.5, 48.3, 0)), False)
sketch3.addGeometry(Part.LineSegment(V(-9.5, 48.3, 0), V(-15.9, 48.3, 0)), False)
sketch3.addGeometry(Part.LineSegment(V(-3.2, 48.3, 0), V(-3.2, 51.4, 0)), False)
sketch3.addGeometry(Part.LineSegment(V(-3.2, 51.4, 0), V(3.2, 51.4, 0)), False)
sketch3.addGeometry(Part.LineSegment(V(3.2, 51.4, 0), V(3.2, 48.3, 0)), False)
sketch3.addGeometry(Part.LineSegment(V(3.2, 48.3, 0), V(-3.2, 48.3, 0)), False)
sketch3.addGeometry(Part.LineSegment(V(9.5, 48.3, 0), V(9.5, 51.4, 0)), False)
sketch3.addGeometry(Part.LineSegment(V(9.5, 51.4, 0), V(15.9, 51.4, 0)), False)
sketch3.addGeometry(Part.LineSegment(V(15.9, 51.4, 0), V(15.9, 48.3, 0)), False)
sketch3.addGeometry(Part.LineSegment(V(15.9, 48.3, 0), V(9.5, 48.3, 0)), False)
sketch3.addGeometry(Part.LineSegment(V(22.2, 48.3, 0), V(22.2, 51.4, 0)), False)
sketch3.addGeometry(Part.LineSegment(V(22.2, 51.4, 0), V(28.6, 51.4, 0)), False)
sketch3.addGeometry(Part.LineSegment(V(28.6, 51.4, 0), V(28.6, 48.3, 0)), False)
sketch3.addGeometry(Part.LineSegment(V(28.6, 48.3, 0), V(22.2, 48.3, 0)), False)
sketch3.addGeometry(Part.LineSegment(V(-28.6, 48.3, 0), V(-28.6, 51.4, 0)), False)
sketch3.addGeometry(Part.LineSegment(V(-28.6, 51.4, 0), V(-22.2, 51.4, 0)), False)
sketch3.addGeometry(Part.LineSegment(V(-22.2, 51.4, 0), V(-22.2, 48.3, 0)), False)
sketch3.addGeometry(Part.LineSegment(V(-22.2, 48.3, 0), V(-28.6, 48.3, 0)), False)
sketch3.addGeometry(Part.LineSegment(V(-28.6, -51.4, 0), V(-28.6, -48.3, 0)), False)
sketch3.addGeometry(Part.LineSegment(V(-28.6, -48.3, 0), V(-22.2, -48.3, 0)), False)
sketch3.addGeometry(Part.LineSegment(V(-22.2, -48.3, 0), V(-22.2, -51.4, 0)), False)
sketch3.addGeometry(Part.LineSegment(V(-22.2, -51.4, 0), V(-28.6, -51.4, 0)), False)
sketch3.addConstraint(Sketcher.Constraint("Coincident", 0, 2, 1, 1))
sketch3.addConstraint(Sketcher.Constraint("Coincident", 1, 2, 2, 1))
sketch3.addConstraint(Sketcher.Constraint("Coincident", 2, 2, 3, 1))
sketch3.addConstraint(Sketcher.Constraint("Coincident", 3, 2, 0, 1))
sketch3.addConstraint(Sketcher.Constraint("Coincident", 4, 2, 5, 1))
sketch3.addConstraint(Sketcher.Constraint("Coincident", 5, 2, 6, 1))
sketch3.addConstraint(Sketcher.Constraint("Coincident", 6, 2, 7, 1))
sketch3.addConstraint(Sketcher.Constraint("Coincident", 7, 2, 4, 1))
sketch3.addConstraint(Sketcher.Constraint("Coincident", 8, 2, 9, 1))
sketch3.addConstraint(Sketcher.Constraint("Coincident", 9, 2, 10, 1))
sketch3.addConstraint(Sketcher.Constraint("Coincident", 10, 2, 11, 1))
sketch3.addConstraint(Sketcher.Constraint("Coincident", 11, 2, 8, 1))
sketch3.addConstraint(Sketcher.Constraint("Coincident", 12, 2, 13, 1))
sketch3.addConstraint(Sketcher.Constraint("Coincident", 13, 2, 14, 1))
sketch3.addConstraint(Sketcher.Constraint("Coincident", 14, 2, 15, 1))
sketch3.addConstraint(Sketcher.Constraint("Coincident", 15, 2, 12, 1))
sketch3.addConstraint(Sketcher.Constraint("Coincident", 16, 2, 17, 1))
sketch3.addConstraint(Sketcher.Constraint("Coincident", 17, 2, 18, 1))
sketch3.addConstraint(Sketcher.Constraint("Coincident", 18, 2, 19, 1))
sketch3.addConstraint(Sketcher.Constraint("Coincident", 19, 2, 16, 1))
sketch3.addConstraint(Sketcher.Constraint("Coincident", 20, 2, 21, 1))
sketch3.addConstraint(Sketcher.Constraint("Coincident", 21, 2, 22, 1))
sketch3.addConstraint(Sketcher.Constraint("Coincident", 22, 2, 23, 1))
sketch3.addConstraint(Sketcher.Constraint("Coincident", 23, 2, 20, 1))
sketch3.addConstraint(Sketcher.Constraint("Coincident", 24, 2, 25, 1))
sketch3.addConstraint(Sketcher.Constraint("Coincident", 25, 2, 26, 1))
sketch3.addConstraint(Sketcher.Constraint("Coincident", 26, 2, 27, 1))
sketch3.addConstraint(Sketcher.Constraint("Coincident", 27, 2, 24, 1))
sketch3.addConstraint(Sketcher.Constraint("Coincident", 28, 2, 29, 1))
sketch3.addConstraint(Sketcher.Constraint("Coincident", 29, 2, 30, 1))
sketch3.addConstraint(Sketcher.Constraint("Coincident", 30, 2, 31, 1))
sketch3.addConstraint(Sketcher.Constraint("Coincident", 31, 2, 28, 1))
sketch3.addConstraint(Sketcher.Constraint("Coincident", 32, 2, 33, 1))
sketch3.addConstraint(Sketcher.Constraint("Coincident", 33, 2, 34, 1))
sketch3.addConstraint(Sketcher.Constraint("Coincident", 34, 2, 35, 1))
sketch3.addConstraint(Sketcher.Constraint("Coincident", 35, 2, 32, 1))
sketch3.addConstraint(Sketcher.Constraint("Coincident", 36, 2, 37, 1))
sketch3.addConstraint(Sketcher.Constraint("Coincident", 37, 2, 38, 1))
sketch3.addConstraint(Sketcher.Constraint("Coincident", 38, 2, 39, 1))
sketch3.addConstraint(Sketcher.Constraint("Coincident", 39, 2, 36, 1))
sketch3.addConstraint(Sketcher.Constraint("Vertical", 0))
sketch3.addConstraint(Sketcher.Constraint("Horizontal", 1))
sketch3.addConstraint(Sketcher.Constraint("Vertical", 2))
sketch3.addConstraint(Sketcher.Constraint("Horizontal", 3))
sketch3.addConstraint(Sketcher.Constraint("Vertical", 4))
sketch3.addConstraint(Sketcher.Constraint("Horizontal", 5))
sketch3.addConstraint(Sketcher.Constraint("Vertical", 6))
sketch3.addConstraint(Sketcher.Constraint("Horizontal", 7))
sketch3.addConstraint(Sketcher.Constraint("Vertical", 8))
sketch3.addConstraint(Sketcher.Constraint("Horizontal", 9))
sketch3.addConstraint(Sketcher.Constraint("Vertical", 10))
sketch3.addConstraint(Sketcher.Constraint("Horizontal", 11))
sketch3.addConstraint(Sketcher.Constraint("Vertical", 12))
sketch3.addConstraint(Sketcher.Constraint("Horizontal", 13))
sketch3.addConstraint(Sketcher.Constraint("Vertical", 14))
sketch3.addConstraint(Sketcher.Constraint("Horizontal", 15))
sketch3.addConstraint(Sketcher.Constraint("Vertical", 16))
sketch3.addConstraint(Sketcher.Constraint("Horizontal", 17))
sketch3.addConstraint(Sketcher.Constraint("Vertical", 18))
sketch3.addConstraint(Sketcher.Constraint("Horizontal", 19))
sketch3.addConstraint(Sketcher.Constraint("Vertical", 20))
sketch3.addConstraint(Sketcher.Constraint("Horizontal", 21))
sketch3.addConstraint(Sketcher.Constraint("Vertical", 22))
sketch3.addConstraint(Sketcher.Constraint("Horizontal", 23))
sketch3.addConstraint(Sketcher.Constraint("Vertical", 24))
sketch3.addConstraint(Sketcher.Constraint("Horizontal", 25))
sketch3.addConstraint(Sketcher.Constraint("Vertical", 26))
sketch3.addConstraint(Sketcher.Constraint("Horizontal", 27))
sketch3.addConstraint(Sketcher.Constraint("Vertical", 28))
sketch3.addConstraint(Sketcher.Constraint("Horizontal", 29))
sketch3.addConstraint(Sketcher.Constraint("Vertical", 30))
sketch3.addConstraint(Sketcher.Constraint("Horizontal", 31))
sketch3.addConstraint(Sketcher.Constraint("Vertical", 32))
sketch3.addConstraint(Sketcher.Constraint("Horizontal", 33))
sketch3.addConstraint(Sketcher.Constraint("Vertical", 34))
sketch3.addConstraint(Sketcher.Constraint("Horizontal", 35))
sketch3.addConstraint(Sketcher.Constraint("Vertical", 36))
sketch3.addConstraint(Sketcher.Constraint("Horizontal", 37))
sketch3.addConstraint(Sketcher.Constraint("Vertical", 38))
sketch3.addConstraint(Sketcher.Constraint("Horizontal", 39))
sketch3.addConstraint(Sketcher.Constraint("Symmetric", 6, 2, 16, 2, -1, 1))
sketch3.addConstraint(Sketcher.Constraint("Symmetric", 4, 2, 18, 2, -1, 1))
sketch3.addConstraint(Sketcher.Constraint("Symmetric", 10, 2, 20, 2, -1, 1))
sketch3.addConstraint(Sketcher.Constraint("Symmetric", 8, 2, 22, 2, -1, 1))
sketch3.addConstraint(Sketcher.Constraint("Symmetric", 14, 2, 24, 2, -1, 1))
sketch3.addConstraint(Sketcher.Constraint("Symmetric", 12, 2, 26, 2, -1, 1))
sketch3.addConstraint(Sketcher.Constraint("Symmetric", 2, 2, 32, 2, -1, 1))
sketch3.addConstraint(Sketcher.Constraint("Symmetric", 0, 2, 34, 2, -1, 1))
sketch3.addConstraint(Sketcher.Constraint("Symmetric", 30, 2, 36, 2, -1, 1))
sketch3.addConstraint(Sketcher.Constraint("Symmetric", 28, 2, 38, 2, -1, 1))
sketch3.addConstraint(Sketcher.Constraint("Symmetric", 5, 2, 12, 2, -2))
sketch3.addConstraint(Sketcher.Constraint("Symmetric", 7, 2, 14, 2, -2))
sketch3.addConstraint(Sketcher.Constraint("Symmetric", 29, 2, 32, 2, -2))
sketch3.addConstraint(Sketcher.Constraint("Symmetric", 31, 2, 34, 2, -2))
sketch3.addConstraint(Sketcher.Constraint("Horizontal", 1, 2, 4, 2))
sketch3.addConstraint(Sketcher.Constraint("Horizontal", 3, 2, 6, 2))
sketch3.addConstraint(Sketcher.Constraint("Horizontal", 5, 2, 8, 2))
sketch3.addConstraint(Sketcher.Constraint("Horizontal", 7, 2, 10, 2))
sketch3.addConstraint(Sketcher.Constraint("Vertical", 11, 2, 20, 2))
sketch3.addConstraint(Sketcher.Constraint("Equal", 3, 5))
sketch3.addConstraint(Sketcher.Constraint("Equal", 7, 9))
sketch3.addConstraint(Sketcher.Constraint("DistanceX", 8, 2, 0, 2, Q("1 in")))
sketch3.addConstraint(Sketcher.Constraint("DistanceX", 12, 2, 4, 2, Q("1 in")))
sketch3.addConstraint(Sketcher.Constraint("DistanceX", 1, 1, 1, 2, Q("0.25 in")))
sketch3.addConstraint(Sketcher.Constraint("DistanceY", 0, 2, -1, 1, Q("1.9 in")))
sketch3.addConstraint(Sketcher.Constraint("DistanceY", 0, 1, 0, 2, Q("0.125 in")))
pocket2 = body.newObject("PartDesign::Pocket", "Pocket001")
pocket2.Profile = sketch3
pocket2.Type = "ThroughAll"
pocket2.Reversed = True

sketch4 = body.newObject("Sketcher::SketchObject", "Sketch003")
sketch4.AttachmentSupport = (doc.getObject("XZ_Plane"), [""])
sketch4.MapMode = "FlatFace"
sketch4.AttachmentOffset = App.Placement(V(0, 0, -0.125 * 25.4), App.Rotation())
sketch4.addGeometry(Part.Circle(V(24.1, -8.9, 0), V(0, 0, 1), 1.6), False)
sketch4.addGeometry(Part.Circle(V(-24.1, -10.1, 0), V(0, 0, 1), 1.6), False)
sketch4.addGeometry(Part.Circle(V(-19, 41.9, 0), V(0, 0, 1), 1.6), False)
sketch4.addGeometry(Part.Circle(V(8.9, 41.9, 0), V(0, 0, 1), 1.6), False)
sketch4.addConstraint(Sketcher.Constraint("Equal", 0, 1))
sketch4.addConstraint(Sketcher.Constraint("Equal", 1, 2))
sketch4.addConstraint(Sketcher.Constraint("Equal", 2, 3))
sketch4.addConstraint(Sketcher.Constraint("Horizontal", 2, 3, 3, 3))
sketch4.addConstraint(Sketcher.Constraint("DistanceY", -1, 1, 2, 3, Q("1.65 in")))
sketch4.addConstraint(Sketcher.Constraint("Diameter", 0, Q("3.216197 mm")))
sketch4.addConstraint(Sketcher.Constraint("DistanceY", 1, 3, -1, 1, Q("10.120449 mm")))
sketch4.addConstraint(Sketcher.Constraint("DistanceX", 2, 3, -1, 1, Q("19.032692 mm")))
sketch4.addConstraint(Sketcher.Constraint("DistanceX", -1, 1, 3, 3, Q("8.87628 mm")))
sketch4.addConstraint(Sketcher.Constraint("DistanceY", 1, 3, 0, 3, Q("1.269551 mm")))
sketch4.addConstraint(Sketcher.Constraint("DistanceX", 2, 3, 0, 3, Q("43.143589 mm")))
sketch4.addConstraint(Sketcher.Constraint("DistanceX", 1, 3, -1, 1, Q("24.110897 mm")))
pocket3 = body.newObject("PartDesign::Pocket", "Pocket002")
pocket3.Profile = sketch4
pocket3.Type = "ThroughAll"
pocket3.Reversed = True

doc.recompute()
